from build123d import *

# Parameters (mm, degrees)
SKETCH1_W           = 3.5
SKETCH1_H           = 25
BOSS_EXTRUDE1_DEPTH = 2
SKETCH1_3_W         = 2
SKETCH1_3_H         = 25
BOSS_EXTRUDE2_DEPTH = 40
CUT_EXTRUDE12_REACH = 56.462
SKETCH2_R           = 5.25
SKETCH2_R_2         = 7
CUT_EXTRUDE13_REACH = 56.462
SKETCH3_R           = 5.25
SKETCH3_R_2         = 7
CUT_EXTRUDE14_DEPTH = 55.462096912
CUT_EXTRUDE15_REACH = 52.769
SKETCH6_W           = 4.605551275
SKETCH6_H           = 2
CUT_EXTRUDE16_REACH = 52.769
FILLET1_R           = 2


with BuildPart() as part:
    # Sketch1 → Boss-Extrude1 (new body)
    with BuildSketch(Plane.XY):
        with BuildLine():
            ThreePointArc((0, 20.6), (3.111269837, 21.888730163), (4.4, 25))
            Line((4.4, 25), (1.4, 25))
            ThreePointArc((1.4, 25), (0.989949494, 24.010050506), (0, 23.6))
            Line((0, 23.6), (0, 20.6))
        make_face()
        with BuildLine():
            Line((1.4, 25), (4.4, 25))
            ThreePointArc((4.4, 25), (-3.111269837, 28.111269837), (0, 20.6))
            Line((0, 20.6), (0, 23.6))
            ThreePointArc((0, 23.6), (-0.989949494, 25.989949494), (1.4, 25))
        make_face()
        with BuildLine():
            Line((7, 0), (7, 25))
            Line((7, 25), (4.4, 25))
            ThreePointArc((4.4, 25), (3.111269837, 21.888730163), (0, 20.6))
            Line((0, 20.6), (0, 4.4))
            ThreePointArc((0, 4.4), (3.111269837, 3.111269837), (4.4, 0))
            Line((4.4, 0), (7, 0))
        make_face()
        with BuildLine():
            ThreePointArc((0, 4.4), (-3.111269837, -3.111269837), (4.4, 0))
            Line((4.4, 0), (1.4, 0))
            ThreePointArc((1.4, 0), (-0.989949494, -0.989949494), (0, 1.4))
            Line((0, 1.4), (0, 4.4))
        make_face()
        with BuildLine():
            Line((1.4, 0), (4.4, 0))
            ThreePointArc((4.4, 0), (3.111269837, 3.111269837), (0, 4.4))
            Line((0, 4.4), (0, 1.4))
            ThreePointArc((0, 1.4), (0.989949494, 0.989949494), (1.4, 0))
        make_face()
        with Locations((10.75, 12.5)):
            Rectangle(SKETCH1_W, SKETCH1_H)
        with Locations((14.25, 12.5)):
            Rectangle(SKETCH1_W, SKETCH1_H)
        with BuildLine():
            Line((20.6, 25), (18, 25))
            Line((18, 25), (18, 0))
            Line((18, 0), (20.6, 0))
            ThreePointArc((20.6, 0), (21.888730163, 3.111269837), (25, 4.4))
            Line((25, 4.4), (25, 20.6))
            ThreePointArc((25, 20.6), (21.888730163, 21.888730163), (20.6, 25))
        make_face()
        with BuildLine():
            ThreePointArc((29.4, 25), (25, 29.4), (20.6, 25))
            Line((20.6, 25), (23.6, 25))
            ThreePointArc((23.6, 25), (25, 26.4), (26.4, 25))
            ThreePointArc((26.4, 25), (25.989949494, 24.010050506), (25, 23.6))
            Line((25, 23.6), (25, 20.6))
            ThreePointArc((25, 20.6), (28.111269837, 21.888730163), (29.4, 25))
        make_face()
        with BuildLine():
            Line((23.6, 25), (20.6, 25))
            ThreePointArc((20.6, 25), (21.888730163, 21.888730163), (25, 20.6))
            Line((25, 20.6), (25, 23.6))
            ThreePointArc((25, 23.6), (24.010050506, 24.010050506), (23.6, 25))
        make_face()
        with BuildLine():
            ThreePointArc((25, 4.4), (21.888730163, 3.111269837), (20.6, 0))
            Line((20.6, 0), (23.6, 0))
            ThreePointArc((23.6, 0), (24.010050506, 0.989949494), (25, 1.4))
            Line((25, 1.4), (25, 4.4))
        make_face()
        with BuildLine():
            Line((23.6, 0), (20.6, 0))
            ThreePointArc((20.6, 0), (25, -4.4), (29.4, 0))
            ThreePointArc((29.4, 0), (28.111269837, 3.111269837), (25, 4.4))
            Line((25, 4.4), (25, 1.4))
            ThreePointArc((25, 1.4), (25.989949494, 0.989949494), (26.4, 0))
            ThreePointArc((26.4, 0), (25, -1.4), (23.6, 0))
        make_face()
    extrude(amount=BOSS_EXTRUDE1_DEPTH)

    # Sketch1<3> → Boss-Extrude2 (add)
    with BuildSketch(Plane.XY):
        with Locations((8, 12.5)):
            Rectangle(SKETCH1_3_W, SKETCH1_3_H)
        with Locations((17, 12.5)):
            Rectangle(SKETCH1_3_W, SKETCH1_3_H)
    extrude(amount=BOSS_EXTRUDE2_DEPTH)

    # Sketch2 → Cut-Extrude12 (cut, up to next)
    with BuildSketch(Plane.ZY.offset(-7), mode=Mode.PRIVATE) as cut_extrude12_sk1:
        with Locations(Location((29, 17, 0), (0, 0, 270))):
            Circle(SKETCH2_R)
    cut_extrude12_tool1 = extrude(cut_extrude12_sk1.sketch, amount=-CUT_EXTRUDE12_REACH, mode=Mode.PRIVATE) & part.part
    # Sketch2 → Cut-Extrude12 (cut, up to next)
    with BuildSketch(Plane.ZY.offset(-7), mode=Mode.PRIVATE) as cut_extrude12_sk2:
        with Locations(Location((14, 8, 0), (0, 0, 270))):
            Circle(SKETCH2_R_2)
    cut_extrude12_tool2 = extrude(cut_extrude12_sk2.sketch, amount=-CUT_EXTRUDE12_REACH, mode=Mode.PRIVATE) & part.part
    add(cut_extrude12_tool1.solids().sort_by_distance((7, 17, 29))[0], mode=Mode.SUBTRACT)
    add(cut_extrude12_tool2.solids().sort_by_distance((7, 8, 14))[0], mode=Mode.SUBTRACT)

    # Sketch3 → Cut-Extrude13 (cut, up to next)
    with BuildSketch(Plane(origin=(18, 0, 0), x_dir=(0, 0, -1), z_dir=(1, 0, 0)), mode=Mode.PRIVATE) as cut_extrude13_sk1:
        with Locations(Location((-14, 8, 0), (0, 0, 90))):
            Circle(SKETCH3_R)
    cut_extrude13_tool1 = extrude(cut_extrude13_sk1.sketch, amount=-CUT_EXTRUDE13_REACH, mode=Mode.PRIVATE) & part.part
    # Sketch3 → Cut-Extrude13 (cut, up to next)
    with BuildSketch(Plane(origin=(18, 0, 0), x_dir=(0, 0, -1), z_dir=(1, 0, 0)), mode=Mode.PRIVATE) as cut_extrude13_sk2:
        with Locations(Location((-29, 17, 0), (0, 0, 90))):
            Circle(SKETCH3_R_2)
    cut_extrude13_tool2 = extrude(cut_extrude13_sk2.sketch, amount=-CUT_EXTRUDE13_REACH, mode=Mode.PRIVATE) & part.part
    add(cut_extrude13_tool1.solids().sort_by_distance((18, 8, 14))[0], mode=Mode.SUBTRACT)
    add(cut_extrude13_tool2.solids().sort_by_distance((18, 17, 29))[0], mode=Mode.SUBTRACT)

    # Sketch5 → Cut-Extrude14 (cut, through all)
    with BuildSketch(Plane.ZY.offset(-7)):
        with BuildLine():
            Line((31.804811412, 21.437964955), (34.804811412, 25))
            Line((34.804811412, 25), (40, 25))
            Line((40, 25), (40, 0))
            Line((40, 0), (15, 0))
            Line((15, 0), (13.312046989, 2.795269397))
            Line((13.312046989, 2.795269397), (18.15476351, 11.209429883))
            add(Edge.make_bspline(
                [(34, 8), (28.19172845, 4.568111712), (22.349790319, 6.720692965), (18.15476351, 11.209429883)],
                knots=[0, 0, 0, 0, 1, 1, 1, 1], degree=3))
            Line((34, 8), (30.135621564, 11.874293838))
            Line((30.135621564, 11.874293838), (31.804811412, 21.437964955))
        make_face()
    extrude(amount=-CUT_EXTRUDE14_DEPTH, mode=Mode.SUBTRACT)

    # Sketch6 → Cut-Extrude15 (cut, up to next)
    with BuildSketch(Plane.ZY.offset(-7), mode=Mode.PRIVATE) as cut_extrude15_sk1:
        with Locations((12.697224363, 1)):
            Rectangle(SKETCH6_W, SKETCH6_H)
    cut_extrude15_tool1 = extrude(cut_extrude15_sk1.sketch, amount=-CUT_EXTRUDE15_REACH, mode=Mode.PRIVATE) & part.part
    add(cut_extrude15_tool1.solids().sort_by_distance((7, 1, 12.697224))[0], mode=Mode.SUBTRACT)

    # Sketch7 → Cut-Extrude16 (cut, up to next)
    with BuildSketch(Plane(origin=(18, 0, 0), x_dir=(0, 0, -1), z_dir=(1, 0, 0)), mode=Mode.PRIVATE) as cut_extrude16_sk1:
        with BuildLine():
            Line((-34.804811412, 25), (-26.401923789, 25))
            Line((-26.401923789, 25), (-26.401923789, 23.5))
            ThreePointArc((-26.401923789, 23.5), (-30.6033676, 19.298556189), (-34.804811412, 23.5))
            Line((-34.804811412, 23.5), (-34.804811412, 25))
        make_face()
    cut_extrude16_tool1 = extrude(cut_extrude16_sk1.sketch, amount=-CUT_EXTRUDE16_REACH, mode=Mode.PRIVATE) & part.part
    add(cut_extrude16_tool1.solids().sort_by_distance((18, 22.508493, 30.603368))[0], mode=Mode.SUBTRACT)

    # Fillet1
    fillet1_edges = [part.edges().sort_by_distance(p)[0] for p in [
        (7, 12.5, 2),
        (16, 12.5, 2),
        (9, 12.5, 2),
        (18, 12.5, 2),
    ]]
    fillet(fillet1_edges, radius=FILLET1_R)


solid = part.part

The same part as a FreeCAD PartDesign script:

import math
import FreeCAD as App
import Part
import Sketcher
Q = App.Units.Quantity


def edges_at(feature, points):
    """Names of the edges that pass closest to the given points."""
    edges = feature.Shape.Edges
    near = lambda p: min(range(len(edges)), key=lambda i: edges[i].distToShape(Part.Vertex(*p))[0])
    return sorted({f"Edge{near(p) + 1}" for p in points})


def add_polygon(sketch, points):
    """Adds a closed chain of lines whose ends are joined by coincident constraints."""
    first, n = sketch.GeometryCount, len(points)
    for a, b in zip(points, points[1:] + points[:1]):
        sketch.addGeometry(Part.LineSegment(App.Vector(*a, 0), App.Vector(*b, 0)), False)
    for i in range(n):
        sketch.addConstraint(Sketcher.Constraint("Coincident", first + i, 2, first + (i + 1) % n, 1))

doc = App.newDocument("Part")
body = doc.addObject("PartDesign::Body", "Body")
body.AllowCompound = True

# Sketch on XY plane
sketch1 = body.newObject("Sketcher::SketchObject", "Sketch")
sketch1.AttachmentSupport = (doc.getObject("XY_Plane"), [""])
sketch1.MapMode = "FlatFace"
sketch1.addGeometry(Part.LineSegment(App.Vector(7, 0, 0), App.Vector(7, 25, 0)), False)  # 0
sketch1.addGeometry(Part.LineSegment(App.Vector(7, 25, 0), App.Vector(4.4, 25, 0)), False)  # 1
sketch1.addGeometry(Part.ArcOfCircle(Part.Circle(App.Vector(0, 25, 0), App.Vector(0, 0, 1), 4.4), math.radians(0), math.radians(270)), False)  # 2
sketch1.addGeometry(Part.LineSegment(App.Vector(0, 20.6, 0), App.Vector(0, 4.4, 0)), False)  # 3
sketch1.addGeometry(Part.ArcOfCircle(Part.Circle(App.Vector(0, 0, 0), App.Vector(0, 0, 1), 4.4), math.radians(90), math.radians(360)), False)  # 4
sketch1.addGeometry(Part.LineSegment(App.Vector(4.4, 0, 0), App.Vector(7, 0, 0)), False)  # 5
sketch1.addGeometry(Part.ArcOfCircle(Part.Circle(App.Vector(0, 25, 0), App.Vector(0, 0, 1), 1.4), math.radians(-90), math.radians(0)), False)  # 6
sketch1.addGeometry(Part.ArcOfCircle(Part.Circle(App.Vector(0, 25, 0), App.Vector(0, 0, 1), 1.4), math.radians(0), math.radians(270)), False)  # 7
sketch1.addGeometry(Part.ArcOfCircle(Part.Circle(App.Vector(0, 0, 0), App.Vector(0, 0, 1), 1.4), math.radians(0), math.radians(90)), False)  # 8
sketch1.addGeometry(Part.ArcOfCircle(Part.Circle(App.Vector(0, 0, 0), App.Vector(0, 0, 1), 1.4), math.radians(90), math.radians(360)), False)  # 9
add_polygon(sketch1, [(9, 25), (9, 0), (16, 0), (16, 25)])  # lines 10-13
sketch1.addGeometry(Part.LineSegment(App.Vector(18, 0, 0), App.Vector(20.6, 0, 0)), False)  # 14
sketch1.addGeometry(Part.ArcOfCircle(Part.Circle(App.Vector(25, 0, 0), App.Vector(0, 0, 1), 4.4), math.radians(180), math.radians(360)), False)  # 15
sketch1.addGeometry(Part.ArcOfCircle(Part.Circle(App.Vector(25, 0, 0), App.Vector(0, 0, 1), 4.4), math.radians(0), math.radians(90)), False)  # 16
sketch1.addGeometry(Part.LineSegment(App.Vector(25, 4.4, 0), App.Vector(25, 20.6, 0)), False)  # 17
sketch1.addGeometry(Part.ArcOfCircle(Part.Circle(App.Vector(25, 25, 0), App.Vector(0, 0, 1), 4.4), math.radians(-90), math.radians(0)), False)  # 18
sketch1.addGeometry(Part.ArcOfCircle(Part.Circle(App.Vector(25, 25, 0), App.Vector(0, 0, 1), 4.4), math.radians(0), math.radians(180)), False)  # 19
sketch1.addGeometry(Part.LineSegment(App.Vector(20.6, 25, 0), App.Vector(18, 25, 0)), False)  # 20
sketch1.addGeometry(Part.LineSegment(App.Vector(18, 25, 0), App.Vector(18, 0, 0)), False)  # 21
sketch1.addGeometry(Part.ArcOfCircle(Part.Circle(App.Vector(25, 0, 0), App.Vector(0, 0, 1), 1.4), math.radians(90), math.radians(180)), False)  # 22
sketch1.addGeometry(Part.ArcOfCircle(Part.Circle(App.Vector(25, 0, 0), App.Vector(0, 0, 1), 1.4), math.radians(0), math.radians(90)), False)  # 23
sketch1.addGeometry(Part.ArcOfCircle(Part.Circle(App.Vector(25, 0, 0), App.Vector(0, 0, 1), 1.4), math.radians(180), math.radians(360)), False)  # 24
sketch1.addGeometry(Part.ArcOfCircle(Part.Circle(App.Vector(25, 25, 0), App.Vector(0, 0, 1), 1.4), math.radians(180), math.radians(270)), False)  # 25
sketch1.addGeometry(Part.ArcOfCircle(Part.Circle(App.Vector(25, 25, 0), App.Vector(0, 0, 1), 1.4), math.radians(0), math.radians(180)), False)  # 26
sketch1.addGeometry(Part.ArcOfCircle(Part.Circle(App.Vector(25, 25, 0), App.Vector(0, 0, 1), 1.4), math.radians(-90), math.radians(0)), False)  # 27
sketch1.addConstraint(Sketcher.Constraint("Coincident", 0, 2, 1, 1))
sketch1.addConstraint(Sketcher.Constraint("Coincident", 1, 2, 2, 1))
sketch1.addConstraint(Sketcher.Constraint("Coincident", 2, 2, 3, 1))
sketch1.addConstraint(Sketcher.Constraint("Coincident", 3, 2, 4, 1))
sketch1.addConstraint(Sketcher.Constraint("Coincident", 4, 2, 5, 1))
sketch1.addConstraint(Sketcher.Constraint("Coincident", 5, 2, 0, 1))
sketch1.addConstraint(Sketcher.Constraint("Tangent", 6, 1, 7, 2))
sketch1.addConstraint(Sketcher.Constraint("Coincident", 7, 1, 6, 2))
sketch1.addConstraint(Sketcher.Constraint("Tangent", 8, 1, 9, 2))
sketch1.addConstraint(Sketcher.Constraint("Coincident", 9, 1, 8, 2))
sketch1.addConstraint(Sketcher.Constraint("Coincident", 14, 2, 15, 1))
sketch1.addConstraint(Sketcher.Constraint("Tangent", 15, 2, 16, 1))
sketch1.addConstraint(Sketcher.Constraint("Coincident", 16, 2, 17, 1))
sketch1.addConstraint(Sketcher.Constraint("Coincident", 17, 2, 18, 1))
sketch1.addConstraint(Sketcher.Constraint("Tangent", 18, 2, 19, 1))
sketch1.addConstraint(Sketcher.Constraint("Coincident", 19, 2, 20, 1))
sketch1.addConstraint(Sketcher.Constraint("Coincident", 20, 2, 21, 1))
sketch1.addConstraint(Sketcher.Constraint("Coincident", 21, 2, 14, 1))
sketch1.addConstraint(Sketcher.Constraint("Tangent", 22, 1, 23, 2))
sketch1.addConstraint(Sketcher.Constraint("Tangent", 23, 1, 24, 2))
sketch1.addConstraint(Sketcher.Constraint("Tangent", 24, 1, 22, 2))
sketch1.addConstraint(Sketcher.Constraint("Tangent", 25, 1, 26, 2))
sketch1.addConstraint(Sketcher.Constraint("Tangent", 26, 1, 27, 2))
sketch1.addConstraint(Sketcher.Constraint("Tangent", 27, 1, 25, 2))
sketch1.addConstraint(Sketcher.Constraint("Vertical", 0))
sketch1.addConstraint(Sketcher.Constraint("Horizontal", 1))
sketch1.addConstraint(Sketcher.Constraint("Vertical", 3))
sketch1.addConstraint(Sketcher.Constraint("Horizontal", 5))
sketch1.addConstraint(Sketcher.Constraint("Vertical", 10))
sketch1.addConstraint(Sketcher.Constraint("Horizontal", 11))
sketch1.addConstraint(Sketcher.Constraint("Vertical", 12))
sketch1.addConstraint(Sketcher.Constraint("Horizontal", 13))
sketch1.addConstraint(Sketcher.Constraint("Horizontal", 14))
sketch1.addConstraint(Sketcher.Constraint("Vertical", 17))
sketch1.addConstraint(Sketcher.Constraint("Horizontal", 20))
sketch1.addConstraint(Sketcher.Constraint("Vertical", 21))
sketch1.addConstraint(Sketcher.Constraint("Coincident", 4, 3, -1, 1))
sketch1.addConstraint(Sketcher.Constraint("Coincident", 8, 3, -1, 1))
sketch1.addConstraint(Sketcher.Constraint("Coincident", 6, 3, 2, 3))
sketch1.addConstraint(Sketcher.Constraint("Coincident", 22, 3, 15, 3))
sketch1.addConstraint(Sketcher.Constraint("Coincident", 25, 3, 18, 3))
sketch1.addConstraint(Sketcher.Constraint("Equal", 2, 4))
sketch1.addConstraint(Sketcher.Constraint("Equal", 7, 8))
sketch1.addConstraint(Sketcher.Constraint("Equal", 4, 15))
sketch1.addConstraint(Sketcher.Constraint("Equal", 15, 16))
sketch1.addConstraint(Sketcher.Constraint("Equal", 16, 18))
sketch1.addConstraint(Sketcher.Constraint("Equal", 18, 19))
sketch1.addConstraint(Sketcher.Constraint("Equal", 9, 22))
sketch1.addConstraint(Sketcher.Constraint("Equal", 24, 25))
sketch1.addConstraint(Sketcher.Constraint("PointOnObject", 2, 3, -2))
sketch1.addConstraint(Sketcher.Constraint("PointOnObject", 15, 3, -1))
sketch1.addConstraint(Sketcher.Constraint("PointOnObject", 2, 2, -2))
sketch1.addConstraint(Sketcher.Constraint("PointOnObject", 4, 2, -1))
sketch1.addConstraint(Sketcher.Constraint("PointOnObject", 6, 1, -2))
sketch1.addConstraint(Sketcher.Constraint("PointOnObject", 8, 1, -1))
sketch1.addConstraint(Sketcher.Constraint("PointOnObject", 9, 1, -2))
sketch1.addConstraint(Sketcher.Constraint("PointOnObject", 10, 2, -1))
sketch1.addConstraint(Sketcher.Constraint("PointOnObject", 14, 2, -1))
sketch1.addConstraint(Sketcher.Constraint("PointOnObject", 15, 2, -1))
sketch1.addConstraint(Sketcher.Constraint("PointOnObject", 23, 1, -1))
sketch1.addConstraint(Sketcher.Constraint("PointOnObject", 24, 1, -1))
sketch1.addConstraint(Sketcher.Constraint("Horizontal", 7, 3, 18, 3))
sketch1.addConstraint(Sketcher.Constraint("Horizontal", 27, 3, 0, 2))
sketch1.addConstraint(Sketcher.Constraint("Horizontal", 1, 2, 7, 1))
sketch1.addConstraint(Sketcher.Constraint("Horizontal", 7, 1, 12, 2))
sketch1.addConstraint(Sketcher.Constraint("Horizontal", 13, 2, 18, 2))
sketch1.addConstraint(Sketcher.Constraint("Horizontal", 18, 2, 19, 2))
sketch1.addConstraint(Sketcher.Constraint("Horizontal", 20, 2, 25, 1))
sketch1.addConstraint(Sketcher.Constraint("Horizontal", 25, 1, 26, 1))
sketch1.addConstraint(Sketcher.Constraint("Vertical", 16, 3, 18, 3))
sketch1.addConstraint(Sketcher.Constraint("Vertical", 27, 3, 16, 2))
sketch1.addConstraint(Sketcher.Constraint("Vertical", 17, 2, 22, 1))
sketch1.addConstraint(Sketcher.Constraint("Vertical", 22, 1, 27, 1))
sketch1.addConstraint(Sketcher.Constraint("Equal", 5, 14))
sketch1.addConstraint(Sketcher.Constraint("Radius", 2, Q("4.4 mm")))
sketch1.addConstraint(Sketcher.Constraint("Radius", 6, Q("1.4 mm")))
sketch1.addConstraint(Sketcher.Constraint("DistanceX", 11, 1, 11, 2, Q("7 mm")))
sketch1.addConstraint(Sketcher.Constraint("DistanceY", 0, 1, 0, 2, Q("25 mm")))
sketch1.addConstraint(Sketcher.Constraint("DistanceX", 1, 2, 1, 1, Q("2.6 mm")))
sketch1.addConstraint(Sketcher.Constraint("DistanceX", -1, 1, 15, 3, Q("25 mm")))
sketch1.addConstraint(Sketcher.Constraint("DistanceX", -1, 1, 10, 2, Q("9 mm")))
pad1 = body.newObject("PartDesign::Pad", "Pad")
pad1.Profile = sketch1
pad1.Length = 2

# Sketch on XY plane
sketch2 = body.newObject("Sketcher::SketchObject", "Sketch001")
sketch2.AttachmentSupport = (doc.getObject("XY_Plane"), [""])
sketch2.MapMode = "FlatFace"
add_polygon(sketch2, [(7, 25), (7, 0), (9, 0), (9, 25)])  # lines 0-3
add_polygon(sketch2, [(16, 25), (16, 0), (18, 0), (18, 25)])  # lines 4-7
sketch2.addConstraint(Sketcher.Constraint("Vertical", 0))
sketch2.addConstraint(Sketcher.Constraint("Horizontal", 1))
sketch2.addConstraint(Sketcher.Constraint("Vertical", 2))
sketch2.addConstraint(Sketcher.Constraint("Horizontal", 3))
sketch2.addConstraint(Sketcher.Constraint("Vertical", 4))
sketch2.addConstraint(Sketcher.Constraint("Horizontal", 5))
sketch2.addConstraint(Sketcher.Constraint("Vertical", 6))
sketch2.addConstraint(Sketcher.Constraint("Horizontal", 7))
sketch2.addConstraint(Sketcher.Constraint("PointOnObject", 0, 2, -1))
sketch2.addConstraint(Sketcher.Constraint("PointOnObject", 4, 2, -1))
sketch2.addConstraint(Sketcher.Constraint("Horizontal", 3, 2, 6, 2))
sketch2.addConstraint(Sketcher.Constraint("Equal", 3, 5))
sketch2.addConstraint(Sketcher.Constraint("DistanceX", 1, 1, 1, 2, Q("2 mm")))
sketch2.addConstraint(Sketcher.Constraint("DistanceY", 0, 2, 0, 1, Q("25 mm")))
sketch2.addConstraint(Sketcher.Constraint("DistanceX", -1, 1, 0, 2, Q("7 mm")))
sketch2.addConstraint(Sketcher.Constraint("DistanceX", -1, 1, 4, 2, Q("16 mm")))
pad2 = body.newObject("PartDesign::Pad", "Pad001")
pad2.Profile = sketch2
pad2.Length = 40

# Sketch on YZ plane
sketch3 = body.newObject("Sketcher::SketchObject", "Sketch002")
sketch3.AttachmentSupport = (doc.getObject("YZ_Plane"), [""])
sketch3.MapMode = "FlatFace"
sketch3.AttachmentOffset = App.Placement(App.Vector(0, 0, 7), App.Rotation())
sketch3.addGeometry(Part.Circle(App.Vector(17, 29, 0), App.Vector(0, 0, 1), 5.25), False)
sketch3.addConstraint(Sketcher.Constraint("Diameter", 0, Q("10.5 mm")))
sketch3.addConstraint(Sketcher.Constraint("DistanceX", -1, 1, 0, 3, Q("17 mm")))
sketch3.addConstraint(Sketcher.Constraint("DistanceY", -1, 1, 0, 3, Q("29 mm")))
pocket1 = body.newObject("PartDesign::Pocket", "Pocket")
pocket1.Profile = sketch3
pocket1.Type = "UpToFirst"
pocket1.Reversed = True

# Sketch on YZ plane
sketch4 = body.newObject("Sketcher::SketchObject", "Sketch003")
sketch4.AttachmentSupport = (doc.getObject("YZ_Plane"), [""])
sketch4.MapMode = "FlatFace"
sketch4.AttachmentOffset = App.Placement(App.Vector(0, 0, 7), App.Rotation())
sketch4.addGeometry(Part.Circle(App.Vector(8, 14, 0), App.Vector(0, 0, 1), 7), False)
sketch4.addConstraint(Sketcher.Constraint("Diameter", 0, Q("14 mm")))
sketch4.addConstraint(Sketcher.Constraint("DistanceX", -1, 1, 0, 3, Q("8 mm")))
sketch4.addConstraint(Sketcher.Constraint("DistanceY", -1, 1, 0, 3, Q("14 mm")))
pocket2 = body.newObject("PartDesign::Pocket", "Pocket001")
pocket2.Profile = sketch4
pocket2.Type = "UpToFirst"
pocket2.Reversed = True

# Sketch on YZ plane
sketch5 = body.newObject("Sketcher::SketchObject", "Sketch004")
sketch5.AttachmentSupport = (doc.getObject("YZ_Plane"), [""])
sketch5.MapMode = "FlatFace"
sketch5.AttachmentOffset = App.Placement(App.Vector(0, 0, 18), App.Rotation())
sketch5.addGeometry(Part.Circle(App.Vector(8, 14, 0), App.Vector(0, 0, 1), 5.25), False)
sketch5.addConstraint(Sketcher.Constraint("Diameter", 0, Q("10.5 mm")))
sketch5.addConstraint(Sketcher.Constraint("DistanceX", -1, 1, 0, 3, Q("8 mm")))
sketch5.addConstraint(Sketcher.Constraint("DistanceY", -1, 1, 0, 3, Q("14 mm")))
pocket3 = body.newObject("PartDesign::Pocket", "Pocket002")
pocket3.Profile = sketch5
pocket3.Type = "UpToFirst"

# Sketch on YZ plane
sketch6 = body.newObject("Sketcher::SketchObject", "Sketch005")
sketch6.AttachmentSupport = (doc.getObject("YZ_Plane"), [""])
sketch6.MapMode = "FlatFace"
sketch6.AttachmentOffset = App.Placement(App.Vector(0, 0, 18), App.Rotation())
sketch6.addGeometry(Part.Circle(App.Vector(17, 29, 0), App.Vector(0, 0, 1), 7), False)
sketch6.addConstraint(Sketcher.Constraint("Diameter", 0, Q("14 mm")))
sketch6.addConstraint(Sketcher.Constraint("DistanceX", -1, 1, 0, 3, Q("17 mm")))
sketch6.addConstraint(Sketcher.Constraint("DistanceY", -1, 1, 0, 3, Q("29 mm")))
pocket4 = body.newObject("PartDesign::Pocket", "Pocket003")
pocket4.Profile = sketch6
pocket4.Type = "UpToFirst"

# Sketch on YZ plane
sketch7 = body.newObject("Sketcher::SketchObject", "Sketch006")
sketch7.AttachmentSupport = (doc.getObject("YZ_Plane"), [""])
sketch7.MapMode = "FlatFace"
sketch7.AttachmentOffset = App.Placement(App.Vector(0, 0, 7), App.Rotation())
sketch7.addGeometry(Part.LineSegment(App.Vector(25, 34.804811, 0), App.Vector(21.437965, 31.804811, 0)), False)
sketch7.addGeometry(Part.LineSegment(App.Vector(21.437965, 31.804811, 0), App.Vector(11.874294, 30.135622, 0)), False)
sketch7.addGeometry(Part.LineSegment(App.Vector(11.874294, 30.135622, 0), App.Vector(8, 34, 0)), False)
sketch7.addGeometry(Part.BSplineCurve([App.Vector(8, 34, 0), App.Vector(4.568112, 28.191728, 0), App.Vector(6.720693, 22.34979, 0), App.Vector(11.20943, 18.154764, 0)], [4, 4], [0, 1], False, 3, [1, 1, 1, 1], False), False)
sketch7.addGeometry(Part.LineSegment(App.Vector(11.20943, 18.154764, 0), App.Vector(2.795269, 13.312047, 0)), False)
sketch7.addGeometry(Part.LineSegment(App.Vector(2.795269, 13.312047, 0), App.Vector(0, 15, 0)), False)
sketch7.addGeometry(Part.LineSegment(App.Vector(0, 15, 0), App.Vector(0, 40, 0)), False)
sketch7.addGeometry(Part.LineSegment(App.Vector(0, 40, 0), App.Vector(25, 40, 0)), False)
sketch7.addGeometry(Part.LineSegment(App.Vector(25, 40, 0), App.Vector(25, 34.804811, 0)), False)
sketch7.addConstraint(Sketcher.Constraint("Block", 3))
sketch7.addConstraint(Sketcher.Constraint("Coincident", 0, 2, 1, 1))
sketch7.addConstraint(Sketcher.Constraint("Coincident", 1, 2, 2, 1))
sketch7.addConstraint(Sketcher.Constraint("Coincident", 2, 2, 3, 1))
sketch7.addConstraint(Sketcher.Constraint("Coincident", 3, 2, 4, 1))
sketch7.addConstraint(Sketcher.Constraint("Coincident", 4, 2, 5, 1))
sketch7.addConstraint(Sketcher.Constraint("Coincident", 5, 2, 6, 1))
sketch7.addConstraint(Sketcher.Constraint("Coincident", 6, 2, 7, 1))
sketch7.addConstraint(Sketcher.Constraint("Coincident", 7, 2, 8, 1))
sketch7.addConstraint(Sketcher.Constraint("Coincident", 8, 2, 0, 1))
sketch7.addConstraint(Sketcher.Constraint("Vertical", 6))
sketch7.addConstraint(Sketcher.Constraint("Horizontal", 7))
sketch7.addConstraint(Sketcher.Constraint("Vertical", 8))
sketch7.addConstraint(Sketcher.Constraint("PointOnObject", 5, 2, -2))
sketch7.addConstraint(Sketcher.Constraint("DistanceX", 7, 1, 7, 2, Q("25 mm")))
sketch7.addConstraint(Sketcher.Constraint("DistanceY", 6, 1, 6, 2, Q("25 mm")))
sketch7.addConstraint(Sketcher.Constraint("DistanceY", -1, 1, 5, 2, Q("15 mm")))
sketch7.addConstraint(Sketcher.Constraint("DistanceY", 0, 2, 8, 2, Q("3 mm")))
sketch7.addConstraint(Sketcher.Constraint("DistanceY", 8, 2, 8, 1, Q("5.195189 mm")))
sketch7.addConstraint(Sketcher.Constraint("Distance", 5, Q("3.265382 mm")))
sketch7.addConstraint(Sketcher.Constraint("DistanceY", -1, 1, 1, 2, Q("30.135622 mm")))
sketch7.addConstraint(Sketcher.Constraint("DistanceX", -1, 1, 4, 2, Q("2.795269 mm")))
sketch7.addConstraint(Sketcher.Constraint("DistanceX", 1, 2, 0, 2, Q("9.563671 mm")))
sketch7.addConstraint(Sketcher.Constraint("Distance", 0, Q("4.657048 mm")))
pocket5 = body.newObject("PartDesign::Pocket", "Pocket004")
pocket5.Profile = sketch7
pocket5.Type = "ThroughAll"
pocket5.Reversed = True

# Sketch on YZ plane
sketch8 = body.newObject("Sketcher::SketchObject", "Sketch007")
sketch8.AttachmentSupport = (doc.getObject("YZ_Plane"), [""])
sketch8.MapMode = "FlatFace"
sketch8.AttachmentOffset = App.Placement(App.Vector(0, 0, 7), App.Rotation())
add_polygon(sketch8, [(2, 10.394449), (0, 10.394449), (0, 15), (2, 15)])  # lines 0-3
sketch8.addConstraint(Sketcher.Constraint("Horizontal", 0))
sketch8.addConstraint(Sketcher.Constraint("Vertical", 1))
sketch8.addConstraint(Sketcher.Constraint("Horizontal", 2))
sketch8.addConstraint(Sketcher.Constraint("Vertical", 3))
sketch8.addConstraint(Sketcher.Constraint("PointOnObject", 0, 2, -2))
sketch8.addConstraint(Sketcher.Constraint("DistanceX", 0, 2, 0, 1, Q("2 mm")))
sketch8.addConstraint(Sketcher.Constraint("DistanceY", -1, 1, 1, 2, Q("15 mm")))
sketch8.addConstraint(Sketcher.Constraint("DistanceY", 1, 1, 1, 2, Q("4.605551 mm")))
pocket6 = body.newObject("PartDesign::Pocket", "Pocket005")
pocket6.Profile = sketch8
pocket6.Type = "UpToFirst"
pocket6.Reversed = True

# Sketch on YZ plane
sketch9 = body.newObject("Sketcher::SketchObject", "Sketch008")
sketch9.AttachmentSupport = (doc.getObject("YZ_Plane"), [""])
sketch9.MapMode = "FlatFace"
sketch9.AttachmentOffset = App.Placement(App.Vector(0, 0, 18), App.Rotation())
sketch9.addGeometry(Part.LineSegment(App.Vector(25, 26.401924, 0), App.Vector(25, 34.804811, 0)), False)
sketch9.addGeometry(Part.LineSegment(App.Vector(25, 34.804811, 0), App.Vector(23.5, 34.804811, 0)), False)
sketch9.addGeometry(Part.ArcOfCircle(Part.Circle(App.Vector(23.5, 30.603368, 0), App.Vector(0, 0, 1), 4.201444), math.radians(90), math.radians(270)), False)
sketch9.addGeometry(Part.LineSegment(App.Vector(23.5, 26.401924, 0), App.Vector(25, 26.401924, 0)), False)
sketch9.addConstraint(Sketcher.Constraint("Coincident", 0, 2, 1, 1))
sketch9.addConstraint(Sketcher.Constraint("Tangent", 1, 2, 2, 1))
sketch9.addConstraint(Sketcher.Constraint("Tangent", 2, 2, 3, 1))
sketch9.addConstraint(Sketcher.Constraint("Coincident", 3, 2, 0, 1))
sketch9.addConstraint(Sketcher.Constraint("Vertical", 0))
sketch9.addConstraint(Sketcher.Constraint("Horizontal", 1))
sketch9.addConstraint(Sketcher.Constraint("Horizontal", 3))
sketch9.addConstraint(Sketcher.Constraint("DistanceX", 1, 2, 1, 1, Q("1.5 mm")))
sketch9.addConstraint(Sketcher.Constraint("DistanceX", -1, 1, 0, 2, Q("25 mm")))
sketch9.addConstraint(Sketcher.Constraint("Radius", 2, Q("4.201444 mm")))
sketch9.addConstraint(Sketcher.Constraint("DistanceY", -1, 1, 0, 2, Q("34.804811 mm")))
pocket7 = body.newObject("PartDesign::Pocket", "Pocket006")
pocket7.Profile = sketch9
pocket7.Type = "UpToFirst"
doc.recompute()

fillet = body.newObject("PartDesign::Fillet", "Fillet")
fillet.Base = (pocket7, edges_at(pocket7, [
    (7, 12.5, 2),
    (16, 12.5, 2),
    (9, 12.5, 2),
    (18, 12.5, 2),
]))
fillet.Radius = 2

doc.recompute()
